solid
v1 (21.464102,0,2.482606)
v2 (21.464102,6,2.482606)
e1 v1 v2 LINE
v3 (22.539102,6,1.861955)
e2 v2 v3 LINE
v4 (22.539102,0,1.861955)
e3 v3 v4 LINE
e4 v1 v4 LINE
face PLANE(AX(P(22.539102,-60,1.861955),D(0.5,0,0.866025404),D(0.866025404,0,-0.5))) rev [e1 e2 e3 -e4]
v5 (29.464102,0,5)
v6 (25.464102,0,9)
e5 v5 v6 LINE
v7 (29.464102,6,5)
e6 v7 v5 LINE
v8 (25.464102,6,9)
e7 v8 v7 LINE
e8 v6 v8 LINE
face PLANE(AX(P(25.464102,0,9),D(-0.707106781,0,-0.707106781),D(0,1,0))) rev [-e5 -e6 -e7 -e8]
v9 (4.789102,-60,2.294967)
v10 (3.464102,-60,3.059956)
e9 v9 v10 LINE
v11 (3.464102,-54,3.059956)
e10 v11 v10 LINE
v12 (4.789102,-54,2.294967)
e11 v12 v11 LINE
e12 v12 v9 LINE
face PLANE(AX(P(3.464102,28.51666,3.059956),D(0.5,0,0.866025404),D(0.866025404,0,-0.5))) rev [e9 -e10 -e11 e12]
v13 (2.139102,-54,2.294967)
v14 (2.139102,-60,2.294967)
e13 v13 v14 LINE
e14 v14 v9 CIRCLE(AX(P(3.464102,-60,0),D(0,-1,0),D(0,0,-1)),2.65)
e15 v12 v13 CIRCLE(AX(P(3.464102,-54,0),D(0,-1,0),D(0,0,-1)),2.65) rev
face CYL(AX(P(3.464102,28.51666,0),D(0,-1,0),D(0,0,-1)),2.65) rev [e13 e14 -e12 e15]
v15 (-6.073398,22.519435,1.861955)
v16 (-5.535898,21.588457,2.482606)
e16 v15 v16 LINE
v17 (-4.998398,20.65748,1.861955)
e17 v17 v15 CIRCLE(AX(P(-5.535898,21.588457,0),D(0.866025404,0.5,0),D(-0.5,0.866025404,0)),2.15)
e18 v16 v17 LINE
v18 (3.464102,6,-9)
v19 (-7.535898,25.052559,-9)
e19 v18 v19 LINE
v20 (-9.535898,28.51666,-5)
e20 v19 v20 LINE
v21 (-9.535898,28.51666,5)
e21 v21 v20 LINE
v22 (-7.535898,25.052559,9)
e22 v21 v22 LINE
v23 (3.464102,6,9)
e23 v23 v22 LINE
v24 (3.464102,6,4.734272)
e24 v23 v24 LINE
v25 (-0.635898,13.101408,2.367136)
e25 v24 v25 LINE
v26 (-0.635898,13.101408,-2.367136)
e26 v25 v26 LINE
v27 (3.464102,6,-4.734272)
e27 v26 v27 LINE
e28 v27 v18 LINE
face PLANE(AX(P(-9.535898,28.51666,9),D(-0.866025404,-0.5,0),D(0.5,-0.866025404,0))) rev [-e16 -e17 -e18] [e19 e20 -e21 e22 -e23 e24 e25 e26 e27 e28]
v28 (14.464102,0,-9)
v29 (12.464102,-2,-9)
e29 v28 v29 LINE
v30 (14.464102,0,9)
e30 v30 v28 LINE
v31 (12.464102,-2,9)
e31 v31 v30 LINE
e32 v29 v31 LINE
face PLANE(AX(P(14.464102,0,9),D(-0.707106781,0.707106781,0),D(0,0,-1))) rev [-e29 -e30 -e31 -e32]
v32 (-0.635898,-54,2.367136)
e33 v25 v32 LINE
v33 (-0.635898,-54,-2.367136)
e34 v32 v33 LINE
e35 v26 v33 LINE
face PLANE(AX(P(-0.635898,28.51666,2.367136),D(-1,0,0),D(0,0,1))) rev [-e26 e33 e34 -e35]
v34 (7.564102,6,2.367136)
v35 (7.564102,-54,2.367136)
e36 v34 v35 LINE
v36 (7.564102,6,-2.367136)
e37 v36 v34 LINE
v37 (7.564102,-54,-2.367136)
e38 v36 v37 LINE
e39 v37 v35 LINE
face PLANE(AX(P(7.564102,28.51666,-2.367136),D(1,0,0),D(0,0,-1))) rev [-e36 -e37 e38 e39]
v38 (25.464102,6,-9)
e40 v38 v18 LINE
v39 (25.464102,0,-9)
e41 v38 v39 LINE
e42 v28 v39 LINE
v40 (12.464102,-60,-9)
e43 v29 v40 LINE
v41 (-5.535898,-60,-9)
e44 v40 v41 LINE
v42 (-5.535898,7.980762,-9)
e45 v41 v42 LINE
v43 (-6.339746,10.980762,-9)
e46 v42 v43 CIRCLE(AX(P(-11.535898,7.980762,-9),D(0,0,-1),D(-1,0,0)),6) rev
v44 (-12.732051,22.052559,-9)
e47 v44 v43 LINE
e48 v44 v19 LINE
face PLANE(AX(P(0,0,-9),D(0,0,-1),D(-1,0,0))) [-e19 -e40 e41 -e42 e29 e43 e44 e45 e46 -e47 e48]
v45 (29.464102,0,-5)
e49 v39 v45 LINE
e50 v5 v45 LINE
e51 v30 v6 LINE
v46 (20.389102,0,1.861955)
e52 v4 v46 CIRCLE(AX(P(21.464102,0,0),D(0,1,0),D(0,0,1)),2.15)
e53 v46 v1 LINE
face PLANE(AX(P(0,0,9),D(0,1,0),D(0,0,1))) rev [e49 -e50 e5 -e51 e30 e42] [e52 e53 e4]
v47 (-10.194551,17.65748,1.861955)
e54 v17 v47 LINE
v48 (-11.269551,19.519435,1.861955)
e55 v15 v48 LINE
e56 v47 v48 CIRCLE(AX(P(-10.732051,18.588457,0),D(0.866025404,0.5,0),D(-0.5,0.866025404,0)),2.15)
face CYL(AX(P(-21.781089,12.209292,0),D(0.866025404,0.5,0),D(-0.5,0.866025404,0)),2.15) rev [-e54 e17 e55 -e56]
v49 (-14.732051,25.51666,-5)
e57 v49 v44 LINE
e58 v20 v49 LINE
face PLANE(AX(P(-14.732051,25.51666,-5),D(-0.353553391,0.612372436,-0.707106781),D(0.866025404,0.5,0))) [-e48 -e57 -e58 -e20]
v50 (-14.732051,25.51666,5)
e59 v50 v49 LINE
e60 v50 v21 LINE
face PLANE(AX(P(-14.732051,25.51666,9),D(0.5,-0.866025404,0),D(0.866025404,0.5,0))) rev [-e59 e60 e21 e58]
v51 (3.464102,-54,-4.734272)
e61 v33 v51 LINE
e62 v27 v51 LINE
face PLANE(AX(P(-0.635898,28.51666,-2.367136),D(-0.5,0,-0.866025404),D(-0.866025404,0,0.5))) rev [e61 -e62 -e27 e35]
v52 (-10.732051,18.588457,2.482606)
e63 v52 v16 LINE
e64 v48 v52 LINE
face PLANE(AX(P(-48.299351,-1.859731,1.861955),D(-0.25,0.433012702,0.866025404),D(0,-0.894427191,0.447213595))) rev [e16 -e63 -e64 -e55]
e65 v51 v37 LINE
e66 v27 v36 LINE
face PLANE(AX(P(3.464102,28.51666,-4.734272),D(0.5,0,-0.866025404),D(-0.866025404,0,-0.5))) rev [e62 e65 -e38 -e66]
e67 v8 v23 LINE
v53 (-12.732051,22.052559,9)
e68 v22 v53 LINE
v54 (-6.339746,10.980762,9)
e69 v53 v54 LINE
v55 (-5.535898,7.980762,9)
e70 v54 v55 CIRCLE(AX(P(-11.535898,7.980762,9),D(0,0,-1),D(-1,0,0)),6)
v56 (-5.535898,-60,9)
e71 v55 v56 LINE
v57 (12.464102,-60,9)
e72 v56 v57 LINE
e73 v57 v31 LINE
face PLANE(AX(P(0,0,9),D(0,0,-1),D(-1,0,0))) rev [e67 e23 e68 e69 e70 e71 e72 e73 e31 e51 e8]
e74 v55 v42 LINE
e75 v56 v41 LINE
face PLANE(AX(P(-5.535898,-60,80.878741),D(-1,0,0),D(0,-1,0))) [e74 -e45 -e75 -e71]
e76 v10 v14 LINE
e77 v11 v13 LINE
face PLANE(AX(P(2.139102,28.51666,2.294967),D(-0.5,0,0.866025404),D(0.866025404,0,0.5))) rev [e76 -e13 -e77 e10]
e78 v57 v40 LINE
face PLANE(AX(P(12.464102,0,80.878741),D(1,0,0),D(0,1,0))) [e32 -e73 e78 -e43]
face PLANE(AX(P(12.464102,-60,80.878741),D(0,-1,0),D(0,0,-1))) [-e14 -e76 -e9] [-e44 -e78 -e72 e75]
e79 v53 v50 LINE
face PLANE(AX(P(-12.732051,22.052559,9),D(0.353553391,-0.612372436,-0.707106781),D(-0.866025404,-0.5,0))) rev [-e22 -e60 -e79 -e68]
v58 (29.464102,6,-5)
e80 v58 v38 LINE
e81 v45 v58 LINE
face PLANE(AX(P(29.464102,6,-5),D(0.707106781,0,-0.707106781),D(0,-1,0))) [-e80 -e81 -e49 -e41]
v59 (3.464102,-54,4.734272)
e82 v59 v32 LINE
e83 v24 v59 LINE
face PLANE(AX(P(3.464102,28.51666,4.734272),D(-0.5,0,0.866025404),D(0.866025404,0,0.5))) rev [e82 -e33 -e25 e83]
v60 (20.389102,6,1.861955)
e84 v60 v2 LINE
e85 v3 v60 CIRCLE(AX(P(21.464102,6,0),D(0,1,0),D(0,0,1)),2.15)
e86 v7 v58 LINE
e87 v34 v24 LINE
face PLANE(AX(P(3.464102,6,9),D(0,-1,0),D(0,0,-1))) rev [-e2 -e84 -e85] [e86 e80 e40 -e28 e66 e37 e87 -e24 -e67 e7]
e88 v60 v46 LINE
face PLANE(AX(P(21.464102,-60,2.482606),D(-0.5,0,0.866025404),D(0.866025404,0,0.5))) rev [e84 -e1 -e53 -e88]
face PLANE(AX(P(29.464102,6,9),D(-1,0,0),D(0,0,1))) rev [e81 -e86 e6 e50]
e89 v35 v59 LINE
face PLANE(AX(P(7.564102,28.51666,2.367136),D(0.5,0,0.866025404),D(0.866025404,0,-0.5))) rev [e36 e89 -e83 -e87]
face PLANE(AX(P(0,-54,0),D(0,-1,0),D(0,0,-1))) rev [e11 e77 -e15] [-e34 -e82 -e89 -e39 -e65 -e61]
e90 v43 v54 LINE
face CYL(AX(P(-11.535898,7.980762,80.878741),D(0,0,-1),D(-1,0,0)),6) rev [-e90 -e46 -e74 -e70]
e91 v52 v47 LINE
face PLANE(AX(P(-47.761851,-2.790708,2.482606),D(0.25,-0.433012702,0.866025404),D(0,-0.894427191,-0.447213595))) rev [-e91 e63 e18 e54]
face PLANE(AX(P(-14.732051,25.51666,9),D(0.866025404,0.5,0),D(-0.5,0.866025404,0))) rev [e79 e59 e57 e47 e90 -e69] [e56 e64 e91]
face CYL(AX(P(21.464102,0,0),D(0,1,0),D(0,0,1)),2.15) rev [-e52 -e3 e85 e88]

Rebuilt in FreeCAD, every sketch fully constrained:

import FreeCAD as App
import Part
import Sketcher

V = App.Vector
Q = App.Units.Quantity


def edges_at(feature, points):
    """Names of the edges that pass closest to the given points."""
    edges = feature.Shape.Edges
    near = lambda p: min(range(len(edges)), key=lambda i: edges[i].distToShape(Part.Vertex(*p))[0])
    return sorted({f"Edge{near(p) + 1}" for p in points})


def add_polygon(sketch, points):
    """Adds a closed chain of lines whose ends are joined by coincident constraints."""
    first, n = sketch.GeometryCount, len(points)
    for a, b in zip(points, points[1:] + points[:1]):
        sketch.addGeometry(Part.LineSegment(App.Vector(*a, 0), App.Vector(*b, 0)), False)
    for i in range(n):
        sketch.addConstraint(Sketcher.Constraint("Coincident", first + i, 2, first + (i + 1) % n, 1))

doc = App.newDocument("Part")
params = doc.addObject("Spreadsheet::Sheet", "Params")
for row, (alias, value) in enumerate([
    ("sketch1_width", "26 mm"),
    ("sketch1_height", "6 mm"),
    ("sketch1_length", "26 mm"),
    ("sketch1_length2", "6 mm"),
    ("pad1_length", "18 mm"),
    ("sketch2_diameter", "4.3 mm"),
    ("sketch3_diameter", "4.3 mm"),
    ("sketch4_width", "18 mm"),
    ("sketch4_height", "60 mm"),
    ("pad2_length", "18 mm"),
    ("chamfer_size", "4 mm"),
    ("chamfer2_size", "2 mm"),
    ("fillet_radius", "6 mm"),
    ("sketch5_height", "2.15 mm"),
    ("sketch6_width", "2.15 mm"),
    ("sketch7_diameter", "5.3 mm"),
    ("sketch9_width", "2.65 mm"),
], start=1):
    params.set(f"A{row}", alias)
    params.set(f"B{row}", "=" + value)
    params.setAlias(f"B{row}", alias)

body = doc.addObject("PartDesign::Body", "Body")

# Sketch on XY plane
sketch1 = body.newObject("Sketcher::SketchObject", "Sketch")
sketch1.AttachmentSupport = (doc.getObject("XY_Plane"), [""])
sketch1.MapMode = "FlatFace"
add_polygon(sketch1, [(-14.732051, 25.51666), (0, 0), (29.464102, 0), (29.464102, 6), (3.464102, 6), (-9.535898, 28.51666)])  # lines 0-5
sketch1.addConstraint([
    Sketcher.Constraint("Horizontal", 1),
    Sketcher.Constraint("Vertical", 2),
    Sketcher.Constraint("Horizontal", 3),
    Sketcher.Constraint("Coincident", 0, 2, -1, 1),
    Sketcher.Constraint("Parallel", 0, 4),
    Sketcher.Constraint("Perpendicular", 4, 5),
    Sketcher.Constraint("DistanceX", 3, 2, 3, 1, 26.0),
    Sketcher.Constraint("DistanceY", 2, 1, 2, 2, 6.0),
    Sketcher.Constraint("Angle", 0, Q("-60 deg")),
    Sketcher.Constraint("Distance", 4, 26.0),
    Sketcher.Constraint("Distance", 5, 6.0),
])
sketch1.setExpression("Constraints[12]", "Params.sketch1_width")
sketch1.setExpression("Constraints[13]", "Params.sketch1_height")
sketch1.setExpression("Constraints[15]", "Params.sketch1_length")
sketch1.setExpression("Constraints[16]", "Params.sketch1_length2")
pad1 = body.newObject("PartDesign::Pad", "Pad")
pad1.Profile = sketch1
pad1.setExpression("Length", "Params.pad1_length")
pad1.Midplane = True

# Sketch on XZ plane
sketch2 = body.newObject("Sketcher::SketchObject", "Sketch001")
sketch2.AttachmentSupport = (doc.getObject("XZ_Plane"), [""])
sketch2.MapMode = "FlatFace"
sketch2.AttachmentOffset = App.Placement(V(0, 0, -6), App.Rotation())
sketch2.addGeometry(Part.Circle(V(21.464102, 0, 0), V(0, 0, 1), 2.15), False)
sketch2.addConstraint([
    Sketcher.Constraint("PointOnObject", 0, 3, -1),
    Sketcher.Constraint("Diameter", 0, 4.3),
    Sketcher.Constraint("DistanceX", -1, 1, 0, 3, 21.464102),
])
sketch2.setExpression("Constraints[1]", "Params.sketch2_diameter")
pocket1 = body.newObject("PartDesign::Pocket", "Pocket")
pocket1.Profile = sketch2
pocket1.Type = "ThroughAll"
pocket1.Reversed = True

# Sketch on an angled plane
sketch3 = body.newObject("Sketcher::SketchObject", "Sketch002")
sketch3.Placement = App.Placement(V(5.196152, 3, 0), App.Rotation(V(0, 0, -1), V(-0.5, 0.866025404, 0), V(0.866025404, 0.5, 0), "ZXY"))
sketch3.addGeometry(Part.Circle(V(0, 21.464102, 0), V(0, 0, 1), 2.15), False)
sketch3.addConstraint([
    Sketcher.Constraint("PointOnObject", 0, 3, -2),
    Sketcher.Constraint("Diameter", 0, 4.3),
    Sketcher.Constraint("DistanceY", -1, 1, 0, 3, 21.464102),
])
sketch3.setExpression("Constraints[1]", "Params.sketch3_diameter")
pocket2 = body.newObject("PartDesign::Pocket", "Pocket001")
pocket2.Profile = sketch3
pocket2.Type = "ThroughAll"

# Sketch on XY plane
sketch4 = body.newObject("Sketcher::SketchObject", "Sketch003")
sketch4.AttachmentSupport = (doc.getObject("XY_Plane"), [""])
sketch4.MapMode = "FlatFace"
sketch4.AttachmentOffset = App.Placement(V(0, 0, -9), App.Rotation())
add_polygon(sketch4, [(0, 0), (12.464102, 0), (12.464102, -60), (-5.535898, -60), (-5.535898, 9.588457)])  # lines 0-4
sketch4.addConstraint([
    Sketcher.Constraint("Horizontal", 0),
    Sketcher.Constraint("Vertical", 1),
    Sketcher.Constraint("Horizontal", 2),
    Sketcher.Constraint("Vertical", 3),
    Sketcher.Constraint("Coincident", 4, 2, -1, 1),
    Sketcher.Constraint("DistanceX", 2, 2, 2, 1, 18.0),
    Sketcher.Constraint("DistanceY", 1, 2, 1, 1, 60.0),
    Sketcher.Constraint("Angle", 4, Q("-60 deg")),
    Sketcher.Constraint("DistanceX", 0, 1, 0, 2, 12.464102),
])
sketch4.setExpression("Constraints[10]", "Params.sketch4_width")
sketch4.setExpression("Constraints[11]", "Params.sketch4_height")
pad2 = body.newObject("PartDesign::Pad", "Pad001")
pad2.Profile = sketch4
pad2.setExpression("Length", "Params.pad2_length")
doc.recompute()

chamfer = body.newObject("PartDesign::Chamfer", "Chamfer")
chamfer.Base = (pad2, edges_at(pad2, [
    (29.464, 3, 9),
    (-12.134, 27.017, 9),
    (29.464, 3, -9),
    (-12.134, 27.017, -9),
]))
chamfer.setExpression("Size", "Params.chamfer_size")
doc.recompute()

chamfer2 = body.newObject("PartDesign::Chamfer", "Chamfer001")
chamfer2.Base = (chamfer, edges_at(chamfer, [(12.464, 0, 0)]))
chamfer2.setExpression("Size", "Params.chamfer2_size")
doc.recompute()

fillet = body.newObject("PartDesign::Fillet", "Fillet")
fillet.Base = (chamfer2, edges_at(chamfer2, [(-5.536, 9.588, 0)]))
fillet.setExpression("Radius", "Params.fillet_radius")

# Sketch on an angled plane
sketch5 = body.newObject("Sketcher::SketchObject", "Sketch004")
sketch5.Placement = App.Placement(V(5.196152, 3, 0), App.Rotation(V(0, 0, -1), V(-0.5, 0.866025404, 0), V(0.866025404, 0.5, 0), "ZXY"))
add_polygon(sketch5, [(-1.861955, 22.539102), (-2.482606, 21.464102), (-1.861955, 20.389102)])  # lines 0-2
sketch5.addConstraint([
    Sketcher.Constraint("Vertical", 2),
    Sketcher.Constraint("Equal", 0, 1),
    Sketcher.Constraint("Angle", 0, Q("-120 deg")),
    Sketcher.Constraint("DistanceY", 2, 1, 2, 2, 2.15),
    Sketcher.Constraint("DistanceY", -1, 1, 0, 2, 21.464102),
    Sketcher.Constraint("DistanceX", 0, 2, -1, 1, 2.482606),
])
sketch5.setExpression("Constraints[6]", "Params.sketch5_height")
pocket3 = body.newObject("PartDesign::Pocket", "Pocket002")
pocket3.Profile = sketch5
pocket3.Type = "ThroughAll"

# Sketch on XZ plane
sketch6 = body.newObject("Sketcher::SketchObject", "Sketch005")
sketch6.AttachmentSupport = (doc.getObject("XZ_Plane"), [""])
sketch6.MapMode = "FlatFace"
sketch6.AttachmentOffset = App.Placement(V(0, 0, -6), App.Rotation())
add_polygon(sketch6, [(21.464102, 2.482606), (22.539102, 1.861955), (20.389102, 1.861955)])  # lines 0-2
sketch6.addConstraint([
    Sketcher.Constraint("Horizontal", 1),
    Sketcher.Constraint("Equal", 0, 2),
    Sketcher.Constraint("Angle", 0, Q("-30 deg")),
    Sketcher.Constraint("DistanceX", 1, 2, 1, 1, 2.15),
    Sketcher.Constraint("DistanceX", -1, 1, 0, 2, 22.539102),
    Sketcher.Constraint("DistanceY", -1, 1, 0, 2, 1.861955),
])
sketch6.setExpression("Constraints[6]", "Params.sketch6_width")
pocket4 = body.newObject("PartDesign::Pocket", "Pocket003")
pocket4.Profile = sketch6
pocket4.Type = "ThroughAll"
pocket4.Reversed = True

# Sketch on XZ plane
sketch7 = body.newObject("Sketcher::SketchObject", "Sketch006")
sketch7.AttachmentSupport = (doc.getObject("XZ_Plane"), [""])
sketch7.MapMode = "FlatFace"
sketch7.AttachmentOffset = App.Placement(V(0, 0, 60), App.Rotation())
sketch7.addGeometry(Part.Circle(V(3.464102, 0, 0), V(0, 0, 1), 2.65), False)
sketch7.addConstraint([
    Sketcher.Constraint("PointOnObject", 0, 3, -1),
    Sketcher.Constraint("Diameter", 0, 5.3),
    Sketcher.Constraint("DistanceX", -1, 1, 0, 3, 3.464102),
])
sketch7.setExpression("Constraints[1]", "Params.sketch7_diameter")
pocket5 = body.newObject("PartDesign::Pocket", "Pocket004")
pocket5.Profile = sketch7
pocket5.Type = "ThroughAll"

# Sketch on XZ plane
sketch8 = body.newObject("Sketcher::SketchObject", "Sketch007")
sketch8.AttachmentSupport = (doc.getObject("XZ_Plane"), [""])
sketch8.MapMode = "FlatFace"
sketch8.AttachmentOffset = App.Placement(V(0, 0, 54), App.Rotation())
add_polygon(sketch8, [(3.464102, 4.734272), (-0.635898, 2.367136), (-0.635898, -2.367136), (3.464102, -4.734272), (7.564102, -2.367136), (7.564102, 2.367136)])  # lines 0-5
sketch8.addConstraint([
    Sketcher.Constraint("Vertical", 1),
    Sketcher.Constraint("Vertical", 4),
    Sketcher.Constraint("Symmetric", 2, 2, 5, 2, -1),
    Sketcher.Constraint("Parallel", 0, 3),
    Sketcher.Constraint("Parallel", 2, 5),
    Sketcher.Constraint("Horizontal", 1, 2, 3, 2),
    Sketcher.Constraint("Horizontal", 0, 2, 4, 2),
    Sketcher.Constraint("Angle", 0, Q("-150 deg")),
    Sketcher.Constraint("DistanceX", 1, 2, 2, 2, 4.1),
    Sketcher.Constraint("DistanceX", 0, 2, -1, 1, 0.635898),
    Sketcher.Constraint("DistanceY", 1, 2, 1, 1, 4.734272),
])
pocket6 = body.newObject("PartDesign::Pocket", "Pocket005")
pocket6.Profile = sketch8
pocket6.Type = "ThroughAll"

# Sketch on XZ plane
sketch9 = body.newObject("Sketcher::SketchObject", "Sketch008")
sketch9.AttachmentSupport = (doc.getObject("XZ_Plane"), [""])
sketch9.MapMode = "FlatFace"
sketch9.AttachmentOffset = App.Placement(V(0, 0, 60), App.Rotation())
add_polygon(sketch9, [(3.464102, 3.059956), (2.139102, 2.294967), (4.789102, 2.294967)])  # lines 0-2
sketch9.addConstraint([
    Sketcher.Constraint("Horizontal", 1),
    Sketcher.Constraint("Equal", 0, 2),
    Sketcher.Constraint("Angle", 0, Q("-150 deg")),
    Sketcher.Constraint("DistanceX", 1, 1, 1, 2, 2.65),
    Sketcher.Constraint("DistanceX", -1, 1, 0, 2, 2.139102),
    Sketcher.Constraint("DistanceY", -1, 1, 0, 2, 2.294967),
])
sketch9.setExpression("Constraints[6]", "Params.sketch9_width")
pocket7 = body.newObject("PartDesign::Pocket", "Pocket006")
pocket7.Profile = sketch9
pocket7.Type = "ThroughAll"

doc.recompute()
